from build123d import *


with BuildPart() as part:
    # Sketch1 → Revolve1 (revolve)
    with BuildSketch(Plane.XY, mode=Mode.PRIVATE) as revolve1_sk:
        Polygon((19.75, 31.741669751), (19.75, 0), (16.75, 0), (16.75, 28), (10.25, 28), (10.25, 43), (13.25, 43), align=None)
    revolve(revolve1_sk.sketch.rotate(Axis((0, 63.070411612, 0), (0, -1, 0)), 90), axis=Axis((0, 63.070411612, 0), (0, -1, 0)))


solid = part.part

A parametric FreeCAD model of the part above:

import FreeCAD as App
import Part
import Sketcher

V = App.Vector
Q = App.Units.Quantity


def add_polygon(sketch, points):
    """Adds a closed chain of lines whose ends are joined by coincident constraints."""
    first, n = sketch.GeometryCount, len(points)
    for a, b in zip(points, points[1:] + points[:1]):
        sketch.addGeometry(Part.LineSegment(App.Vector(*a, 0), App.Vector(*b, 0)), False)
    for i in range(n):
        sketch.addConstraint(Sketcher.Constraint("Coincident", first + i, 2, first + (i + 1) % n, 1))

doc = App.newDocument("Part")
body = doc.addObject("PartDesign::Body", "Body")

sketch1 = doc.addObject("Sketcher::SketchObject", "Sketch")
body.addObject(sketch1)
sketch1.AttachmentSupport = (doc.XY_Plane, [""])
sketch1.MapMode = "FlatFace"
add_polygon(sketch1, [(19.8, 0), (19.8, 31.7), (13.2, 43), (10.2, 43), (10.2, 28), (16.8, 28), (16.8, 0)])
sketch1.addConstraint([
    Sketcher.Constraint("Vertical", 0),
    Sketcher.Constraint("Horizontal", 2),
    Sketcher.Constraint("Vertical", 3),
    Sketcher.Constraint("Horizontal", 4),
    Sketcher.Constraint("Vertical", 5),
    Sketcher.Constraint("Horizontal", 6),
    Sketcher.Constraint("PointOnObject", 5, 2, -1),
    Sketcher.Constraint("Equal", 2, 6),
    Sketcher.Constraint("DistanceX", 2, 2, 2, 1, 3.0),
    Sketcher.Constraint("DistanceY", 3, 2, 3, 1, 15.0),
    Sketcher.Constraint("DistanceY", 5, 2, 5, 1, 28.0),
    Sketcher.Constraint("Angle", 1, Q("120 deg")),
    Sketcher.Constraint("Distance", 1, 13.0),
    Sketcher.Constraint("DistanceX", -1, 1, 0, 2, 19.75),
])
revolution = doc.addObject("PartDesign::Revolution", "Revolution")
body.addObject(revolution)
revolution.Profile = sketch1
revolution.ReferenceAxis = (sketch1, ["V_Axis"])
revolution.Angle = 360

doc.recompute()
